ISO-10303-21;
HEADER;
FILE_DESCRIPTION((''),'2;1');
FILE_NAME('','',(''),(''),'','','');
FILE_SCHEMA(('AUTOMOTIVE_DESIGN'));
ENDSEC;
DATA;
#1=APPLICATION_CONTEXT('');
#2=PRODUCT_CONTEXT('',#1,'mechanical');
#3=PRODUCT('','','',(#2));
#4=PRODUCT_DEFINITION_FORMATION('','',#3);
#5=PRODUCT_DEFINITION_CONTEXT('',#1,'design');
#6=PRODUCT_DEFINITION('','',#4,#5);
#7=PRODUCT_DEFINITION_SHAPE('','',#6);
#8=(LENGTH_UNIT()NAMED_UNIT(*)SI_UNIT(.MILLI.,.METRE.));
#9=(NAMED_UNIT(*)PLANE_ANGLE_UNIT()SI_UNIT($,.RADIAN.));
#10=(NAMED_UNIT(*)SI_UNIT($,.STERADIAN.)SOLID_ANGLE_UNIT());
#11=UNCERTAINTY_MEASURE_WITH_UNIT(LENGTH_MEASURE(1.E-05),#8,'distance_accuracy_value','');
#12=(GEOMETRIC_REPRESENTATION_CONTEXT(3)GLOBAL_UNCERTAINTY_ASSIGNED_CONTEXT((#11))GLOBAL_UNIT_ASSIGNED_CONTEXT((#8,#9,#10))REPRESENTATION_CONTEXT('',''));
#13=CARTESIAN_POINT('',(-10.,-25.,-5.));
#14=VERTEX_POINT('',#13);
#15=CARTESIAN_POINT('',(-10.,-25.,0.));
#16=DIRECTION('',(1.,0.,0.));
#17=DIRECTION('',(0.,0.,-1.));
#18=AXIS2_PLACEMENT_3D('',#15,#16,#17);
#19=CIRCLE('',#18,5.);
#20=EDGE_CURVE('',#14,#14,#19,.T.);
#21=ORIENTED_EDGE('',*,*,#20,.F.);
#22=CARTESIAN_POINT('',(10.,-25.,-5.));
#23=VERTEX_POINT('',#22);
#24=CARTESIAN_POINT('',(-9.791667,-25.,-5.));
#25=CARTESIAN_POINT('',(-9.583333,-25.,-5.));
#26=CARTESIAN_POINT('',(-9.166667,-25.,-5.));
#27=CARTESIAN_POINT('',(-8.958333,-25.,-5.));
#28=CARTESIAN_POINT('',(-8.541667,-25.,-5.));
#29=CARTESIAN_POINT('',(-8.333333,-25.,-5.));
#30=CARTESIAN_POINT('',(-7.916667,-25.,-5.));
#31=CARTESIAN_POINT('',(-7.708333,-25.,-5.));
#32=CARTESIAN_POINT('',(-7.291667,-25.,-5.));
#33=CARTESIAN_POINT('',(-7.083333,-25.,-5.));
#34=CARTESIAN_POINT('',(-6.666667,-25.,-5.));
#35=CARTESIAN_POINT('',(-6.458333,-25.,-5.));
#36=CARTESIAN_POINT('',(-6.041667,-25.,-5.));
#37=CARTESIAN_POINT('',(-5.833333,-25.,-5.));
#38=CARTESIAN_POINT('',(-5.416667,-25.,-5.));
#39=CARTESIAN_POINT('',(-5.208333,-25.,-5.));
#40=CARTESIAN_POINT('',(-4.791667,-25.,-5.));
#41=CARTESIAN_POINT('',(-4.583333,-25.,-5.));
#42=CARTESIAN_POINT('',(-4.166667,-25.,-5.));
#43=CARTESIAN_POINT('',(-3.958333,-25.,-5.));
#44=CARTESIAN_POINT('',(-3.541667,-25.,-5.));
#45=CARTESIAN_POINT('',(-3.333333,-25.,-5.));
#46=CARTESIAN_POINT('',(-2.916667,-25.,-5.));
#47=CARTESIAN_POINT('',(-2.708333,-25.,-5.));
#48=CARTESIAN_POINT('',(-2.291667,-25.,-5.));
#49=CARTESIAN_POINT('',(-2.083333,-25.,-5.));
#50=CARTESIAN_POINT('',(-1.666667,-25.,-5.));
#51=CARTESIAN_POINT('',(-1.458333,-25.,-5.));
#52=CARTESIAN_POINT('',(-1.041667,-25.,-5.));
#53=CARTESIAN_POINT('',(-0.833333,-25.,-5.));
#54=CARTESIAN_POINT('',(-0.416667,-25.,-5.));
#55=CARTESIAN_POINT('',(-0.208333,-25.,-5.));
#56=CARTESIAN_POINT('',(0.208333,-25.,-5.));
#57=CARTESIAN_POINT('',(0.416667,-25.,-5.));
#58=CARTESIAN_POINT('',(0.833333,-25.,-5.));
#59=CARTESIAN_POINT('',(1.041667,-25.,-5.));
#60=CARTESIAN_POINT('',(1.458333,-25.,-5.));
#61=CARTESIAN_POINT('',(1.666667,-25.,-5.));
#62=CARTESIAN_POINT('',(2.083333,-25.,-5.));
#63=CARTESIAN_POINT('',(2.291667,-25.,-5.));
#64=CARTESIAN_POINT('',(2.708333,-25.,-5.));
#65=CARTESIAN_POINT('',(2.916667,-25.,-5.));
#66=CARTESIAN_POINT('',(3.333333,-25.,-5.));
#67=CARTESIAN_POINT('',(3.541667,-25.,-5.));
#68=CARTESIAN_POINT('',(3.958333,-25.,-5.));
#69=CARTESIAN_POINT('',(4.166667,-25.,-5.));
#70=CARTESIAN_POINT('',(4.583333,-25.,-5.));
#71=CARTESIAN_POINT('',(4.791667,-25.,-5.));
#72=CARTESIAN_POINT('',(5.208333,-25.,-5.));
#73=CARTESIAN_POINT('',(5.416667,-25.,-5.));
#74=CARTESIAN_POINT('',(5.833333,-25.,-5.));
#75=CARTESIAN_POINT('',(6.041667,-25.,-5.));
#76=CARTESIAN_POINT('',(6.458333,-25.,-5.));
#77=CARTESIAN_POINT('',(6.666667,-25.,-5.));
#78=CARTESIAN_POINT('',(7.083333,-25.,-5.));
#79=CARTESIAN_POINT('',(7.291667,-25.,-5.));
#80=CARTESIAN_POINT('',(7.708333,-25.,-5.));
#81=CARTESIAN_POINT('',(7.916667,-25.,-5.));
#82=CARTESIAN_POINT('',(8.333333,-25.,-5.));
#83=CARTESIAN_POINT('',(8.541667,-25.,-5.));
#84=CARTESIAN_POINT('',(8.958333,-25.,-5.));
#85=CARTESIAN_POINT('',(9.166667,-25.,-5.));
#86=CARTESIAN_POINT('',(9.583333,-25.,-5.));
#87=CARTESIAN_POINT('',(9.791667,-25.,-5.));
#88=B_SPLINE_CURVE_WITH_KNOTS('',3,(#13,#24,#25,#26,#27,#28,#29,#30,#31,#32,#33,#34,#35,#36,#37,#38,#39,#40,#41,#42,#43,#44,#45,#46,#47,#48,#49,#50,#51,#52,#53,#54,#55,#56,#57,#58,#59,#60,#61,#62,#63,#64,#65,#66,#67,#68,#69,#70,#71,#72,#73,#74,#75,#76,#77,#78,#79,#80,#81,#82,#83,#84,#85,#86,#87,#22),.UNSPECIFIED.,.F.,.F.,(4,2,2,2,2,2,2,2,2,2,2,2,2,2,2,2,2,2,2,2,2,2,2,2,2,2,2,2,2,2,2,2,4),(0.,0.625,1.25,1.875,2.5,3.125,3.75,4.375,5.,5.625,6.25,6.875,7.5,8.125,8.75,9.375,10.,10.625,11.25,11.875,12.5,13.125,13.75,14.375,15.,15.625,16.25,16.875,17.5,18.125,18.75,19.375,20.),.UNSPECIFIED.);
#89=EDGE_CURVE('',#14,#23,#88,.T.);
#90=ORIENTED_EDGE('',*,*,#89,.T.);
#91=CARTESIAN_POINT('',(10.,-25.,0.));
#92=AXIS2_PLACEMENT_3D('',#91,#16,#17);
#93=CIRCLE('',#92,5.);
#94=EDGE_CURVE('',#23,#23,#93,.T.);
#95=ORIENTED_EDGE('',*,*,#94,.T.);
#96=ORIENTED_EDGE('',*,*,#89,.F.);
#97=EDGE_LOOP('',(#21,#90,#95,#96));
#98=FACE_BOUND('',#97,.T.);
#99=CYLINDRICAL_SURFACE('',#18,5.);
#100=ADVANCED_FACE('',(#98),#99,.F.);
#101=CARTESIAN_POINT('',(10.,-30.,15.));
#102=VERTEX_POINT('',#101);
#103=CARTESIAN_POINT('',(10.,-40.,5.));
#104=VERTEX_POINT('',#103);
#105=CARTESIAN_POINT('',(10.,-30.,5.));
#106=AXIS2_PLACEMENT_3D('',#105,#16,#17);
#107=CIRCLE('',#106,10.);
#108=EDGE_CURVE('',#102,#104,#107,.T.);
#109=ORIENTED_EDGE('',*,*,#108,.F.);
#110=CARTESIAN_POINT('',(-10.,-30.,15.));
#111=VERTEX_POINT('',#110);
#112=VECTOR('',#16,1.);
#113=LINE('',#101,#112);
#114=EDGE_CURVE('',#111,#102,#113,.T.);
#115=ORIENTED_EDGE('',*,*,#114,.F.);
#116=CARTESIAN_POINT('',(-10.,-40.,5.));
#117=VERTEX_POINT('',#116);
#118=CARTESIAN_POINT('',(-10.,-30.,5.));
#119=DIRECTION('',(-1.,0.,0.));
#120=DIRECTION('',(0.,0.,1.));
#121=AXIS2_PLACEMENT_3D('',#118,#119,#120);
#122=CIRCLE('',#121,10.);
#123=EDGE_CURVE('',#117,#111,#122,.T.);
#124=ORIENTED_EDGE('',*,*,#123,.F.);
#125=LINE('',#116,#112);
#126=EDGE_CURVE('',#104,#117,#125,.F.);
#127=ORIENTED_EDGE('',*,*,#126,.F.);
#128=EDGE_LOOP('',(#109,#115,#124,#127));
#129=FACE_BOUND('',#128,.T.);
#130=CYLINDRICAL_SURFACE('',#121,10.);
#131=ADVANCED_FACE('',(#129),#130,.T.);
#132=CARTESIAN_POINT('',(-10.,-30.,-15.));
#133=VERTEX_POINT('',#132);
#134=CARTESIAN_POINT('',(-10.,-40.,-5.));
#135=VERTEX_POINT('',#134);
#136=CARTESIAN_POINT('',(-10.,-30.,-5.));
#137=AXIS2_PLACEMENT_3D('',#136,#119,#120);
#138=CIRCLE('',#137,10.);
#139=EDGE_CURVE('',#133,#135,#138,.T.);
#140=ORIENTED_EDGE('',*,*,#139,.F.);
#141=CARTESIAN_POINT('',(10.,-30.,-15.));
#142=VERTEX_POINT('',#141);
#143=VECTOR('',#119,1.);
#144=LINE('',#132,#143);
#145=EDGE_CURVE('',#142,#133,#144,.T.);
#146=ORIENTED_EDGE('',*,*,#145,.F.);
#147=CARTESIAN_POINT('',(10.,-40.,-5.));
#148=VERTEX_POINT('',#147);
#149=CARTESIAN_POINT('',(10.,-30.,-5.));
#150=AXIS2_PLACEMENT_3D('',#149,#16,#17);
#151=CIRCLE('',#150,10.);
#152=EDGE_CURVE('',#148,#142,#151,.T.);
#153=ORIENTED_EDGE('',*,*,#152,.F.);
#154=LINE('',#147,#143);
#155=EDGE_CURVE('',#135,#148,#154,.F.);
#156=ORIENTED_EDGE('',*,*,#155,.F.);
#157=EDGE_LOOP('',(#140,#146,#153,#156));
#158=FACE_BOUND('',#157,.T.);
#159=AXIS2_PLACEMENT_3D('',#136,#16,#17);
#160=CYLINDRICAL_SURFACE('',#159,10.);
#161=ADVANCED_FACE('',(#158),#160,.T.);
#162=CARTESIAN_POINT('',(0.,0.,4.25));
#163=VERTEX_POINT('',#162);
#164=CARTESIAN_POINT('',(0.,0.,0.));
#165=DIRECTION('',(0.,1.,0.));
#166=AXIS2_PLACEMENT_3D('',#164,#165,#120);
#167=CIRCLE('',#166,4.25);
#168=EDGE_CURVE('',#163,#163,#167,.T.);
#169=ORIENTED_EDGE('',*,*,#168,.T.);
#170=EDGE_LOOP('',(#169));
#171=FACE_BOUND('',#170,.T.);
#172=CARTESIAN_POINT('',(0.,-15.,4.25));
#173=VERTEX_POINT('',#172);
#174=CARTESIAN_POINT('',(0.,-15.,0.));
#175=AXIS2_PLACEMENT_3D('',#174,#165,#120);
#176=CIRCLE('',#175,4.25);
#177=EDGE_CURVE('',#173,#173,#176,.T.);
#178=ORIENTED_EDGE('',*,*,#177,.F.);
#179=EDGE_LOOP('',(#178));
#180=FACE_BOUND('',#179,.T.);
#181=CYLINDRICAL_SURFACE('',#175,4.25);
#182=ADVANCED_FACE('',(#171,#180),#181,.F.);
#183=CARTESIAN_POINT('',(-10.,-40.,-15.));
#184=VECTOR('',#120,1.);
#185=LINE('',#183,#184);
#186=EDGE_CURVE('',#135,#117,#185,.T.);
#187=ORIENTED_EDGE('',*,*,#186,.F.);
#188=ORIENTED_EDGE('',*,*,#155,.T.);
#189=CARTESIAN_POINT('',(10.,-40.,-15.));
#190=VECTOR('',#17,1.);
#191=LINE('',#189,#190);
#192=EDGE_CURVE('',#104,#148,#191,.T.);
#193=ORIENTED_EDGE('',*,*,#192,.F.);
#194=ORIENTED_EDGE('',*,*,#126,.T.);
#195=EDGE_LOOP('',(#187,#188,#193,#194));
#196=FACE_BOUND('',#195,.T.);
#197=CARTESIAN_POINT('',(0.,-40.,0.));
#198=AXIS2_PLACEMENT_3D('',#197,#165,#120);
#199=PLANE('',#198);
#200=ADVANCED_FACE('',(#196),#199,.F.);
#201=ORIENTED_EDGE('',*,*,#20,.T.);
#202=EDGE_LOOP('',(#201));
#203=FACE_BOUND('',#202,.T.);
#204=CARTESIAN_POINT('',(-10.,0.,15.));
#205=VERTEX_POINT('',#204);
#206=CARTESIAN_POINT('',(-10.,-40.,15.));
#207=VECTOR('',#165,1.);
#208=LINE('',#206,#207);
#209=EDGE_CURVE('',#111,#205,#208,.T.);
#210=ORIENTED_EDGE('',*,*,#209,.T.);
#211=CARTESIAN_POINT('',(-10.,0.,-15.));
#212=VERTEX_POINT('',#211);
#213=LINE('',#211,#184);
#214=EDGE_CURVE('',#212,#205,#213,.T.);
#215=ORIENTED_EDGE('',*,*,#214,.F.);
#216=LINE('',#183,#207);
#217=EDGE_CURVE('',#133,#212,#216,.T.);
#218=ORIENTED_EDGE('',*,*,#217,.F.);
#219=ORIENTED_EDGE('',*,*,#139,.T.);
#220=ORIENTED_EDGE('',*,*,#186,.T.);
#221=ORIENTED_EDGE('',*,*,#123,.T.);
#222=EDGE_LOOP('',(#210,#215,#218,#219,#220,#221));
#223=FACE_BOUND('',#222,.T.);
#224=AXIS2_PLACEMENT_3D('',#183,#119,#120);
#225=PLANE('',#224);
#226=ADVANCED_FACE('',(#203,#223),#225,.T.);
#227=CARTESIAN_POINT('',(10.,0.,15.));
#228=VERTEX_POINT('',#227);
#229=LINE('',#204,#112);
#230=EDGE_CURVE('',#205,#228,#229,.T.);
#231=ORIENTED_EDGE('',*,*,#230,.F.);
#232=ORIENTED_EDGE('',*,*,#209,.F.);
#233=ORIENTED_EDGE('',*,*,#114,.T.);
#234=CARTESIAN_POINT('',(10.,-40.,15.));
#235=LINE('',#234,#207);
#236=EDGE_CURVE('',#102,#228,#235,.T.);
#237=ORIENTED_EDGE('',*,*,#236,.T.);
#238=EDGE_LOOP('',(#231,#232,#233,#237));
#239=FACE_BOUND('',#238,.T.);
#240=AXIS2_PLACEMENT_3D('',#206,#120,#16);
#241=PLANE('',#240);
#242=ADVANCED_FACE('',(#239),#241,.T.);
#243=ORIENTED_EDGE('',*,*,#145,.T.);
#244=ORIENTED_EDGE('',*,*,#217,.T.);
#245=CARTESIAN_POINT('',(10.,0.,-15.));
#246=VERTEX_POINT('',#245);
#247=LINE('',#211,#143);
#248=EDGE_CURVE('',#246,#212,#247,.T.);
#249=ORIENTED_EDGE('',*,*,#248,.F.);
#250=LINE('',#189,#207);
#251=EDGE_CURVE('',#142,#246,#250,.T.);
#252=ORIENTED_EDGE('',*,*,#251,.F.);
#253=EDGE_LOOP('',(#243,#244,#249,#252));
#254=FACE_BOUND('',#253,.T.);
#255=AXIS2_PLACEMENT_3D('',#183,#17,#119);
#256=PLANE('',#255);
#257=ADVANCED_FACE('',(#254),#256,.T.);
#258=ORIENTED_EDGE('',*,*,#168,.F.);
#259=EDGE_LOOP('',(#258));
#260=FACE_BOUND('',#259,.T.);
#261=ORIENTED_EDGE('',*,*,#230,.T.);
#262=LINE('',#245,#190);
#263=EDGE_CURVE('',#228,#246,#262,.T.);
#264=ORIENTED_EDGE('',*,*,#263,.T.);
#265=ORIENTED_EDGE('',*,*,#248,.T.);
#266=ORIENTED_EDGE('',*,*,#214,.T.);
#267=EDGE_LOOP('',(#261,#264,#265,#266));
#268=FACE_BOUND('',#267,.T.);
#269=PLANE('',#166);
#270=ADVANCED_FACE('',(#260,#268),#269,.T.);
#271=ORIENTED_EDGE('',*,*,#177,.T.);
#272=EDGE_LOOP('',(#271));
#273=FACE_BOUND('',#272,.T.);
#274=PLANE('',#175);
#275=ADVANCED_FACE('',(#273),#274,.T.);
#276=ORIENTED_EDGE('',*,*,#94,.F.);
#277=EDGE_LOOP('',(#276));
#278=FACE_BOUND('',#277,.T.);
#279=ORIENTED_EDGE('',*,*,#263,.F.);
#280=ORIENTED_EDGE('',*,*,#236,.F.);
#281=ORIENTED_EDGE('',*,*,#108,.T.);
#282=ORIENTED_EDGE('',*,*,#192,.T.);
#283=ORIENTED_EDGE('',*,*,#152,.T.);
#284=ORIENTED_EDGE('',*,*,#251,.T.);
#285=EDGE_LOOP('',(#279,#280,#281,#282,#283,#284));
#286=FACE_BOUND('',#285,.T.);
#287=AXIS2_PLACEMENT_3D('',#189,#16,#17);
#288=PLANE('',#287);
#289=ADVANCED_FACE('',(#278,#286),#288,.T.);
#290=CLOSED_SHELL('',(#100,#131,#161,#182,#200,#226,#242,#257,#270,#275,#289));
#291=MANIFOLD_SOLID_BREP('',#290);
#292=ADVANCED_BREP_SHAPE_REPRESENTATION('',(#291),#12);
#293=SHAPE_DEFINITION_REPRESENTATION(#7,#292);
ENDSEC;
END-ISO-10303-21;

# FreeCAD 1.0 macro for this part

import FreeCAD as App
import Part
import Sketcher


def edges_at(feature, points):
    """Names of the edges that pass closest to the given points."""
    edges = feature.Shape.Edges
    near = lambda p: min(range(len(edges)), key=lambda i: edges[i].distToShape(Part.Vertex(*p))[0])
    return sorted({f"Edge{near(p) + 1}" for p in points})

doc = App.newDocument("Part")
params = doc.addObject("Spreadsheet::Sheet", "Params")
for row, (alias, value) in enumerate([
    ("sketch1_width", "20 mm"),
    ("sketch1_height", "30 mm"),
    ("pad1_length", "40 mm"),
    ("sketch2_diameter", "8.5 mm"),
    ("pocket1_length", "15 mm"),
    ("sketch3_diameter", "10 mm"),
    ("fillet_radius", "10 mm"),
], start=1):
    params.set(f"A{row}", alias)
    params.set(f"B{row}", "=" + value)
    params.setAlias(f"B{row}", alias)

body = doc.addObject("PartDesign::Body", "Body")

sketch1 = doc.addObject("Sketcher::SketchObject", "Sketch")
body.addObject(sketch1)
sketch1.AttachmentSupport = (doc.XZ_Plane, [""])
sketch1.MapMode = "FlatFace"
sketch1.addGeometry(Part.LineSegment(App.Vector(-10, -15, 0), App.Vector(-10, 15, 0)), False)
sketch1.addGeometry(Part.LineSegment(App.Vector(-10, 15, 0), App.Vector(10, 15, 0)), False)
sketch1.addGeometry(Part.LineSegment(App.Vector(10, 15, 0), App.Vector(10, -15, 0)), False)
sketch1.addGeometry(Part.LineSegment(App.Vector(10, -15, 0), App.Vector(-10, -15, 0)), False)
sketch1.addConstraint(Sketcher.Constraint("Coincident", 0, 2, 1, 1))
sketch1.addConstraint(Sketcher.Constraint("Coincident", 1, 2, 2, 1))
sketch1.addConstraint(Sketcher.Constraint("Coincident", 2, 2, 3, 1))
sketch1.addConstraint(Sketcher.Constraint("Coincident", 3, 2, 0, 1))
sketch1.addConstraint(Sketcher.Constraint("Vertical", 0))
sketch1.addConstraint(Sketcher.Constraint("Horizontal", 1))
sketch1.addConstraint(Sketcher.Constraint("Vertical", 2))
sketch1.addConstraint(Sketcher.Constraint("Horizontal", 3))
sketch1.addConstraint(Sketcher.Constraint("Symmetric", 0, 2, 2, 2, -1, 1))
sketch1.addConstraint(Sketcher.Constraint("DistanceX", 1, 1, 1, 2, 20.0))
sketch1.addConstraint(Sketcher.Constraint("DistanceY", 0, 1, 0, 2, 30.0))
sketch1.setExpression("Constraints[9]", "Params.sketch1_width")
sketch1.setExpression("Constraints[10]", "Params.sketch1_height")
pad1 = doc.addObject("PartDesign::Pad", "Pad")
body.addObject(pad1)
pad1.Profile = sketch1
pad1.setExpression("Length", "Params.pad1_length")

sketch2 = doc.addObject("Sketcher::SketchObject", "Sketch001")
body.addObject(sketch2)
sketch2.AttachmentSupport = (doc.XZ_Plane, [""])
sketch2.MapMode = "FlatFace"
sketch2.addGeometry(Part.Circle(App.Vector(0, 0, 0), App.Vector(0, 0, 1), 4.2), False)
sketch2.addConstraint(Sketcher.Constraint("Coincident", 0, 3, -1, 1))
sketch2.addConstraint(Sketcher.Constraint("Diameter", 0, 8.5))
sketch2.setExpression("Constraints[1]", "Params.sketch2_diameter")
pocket1 = doc.addObject("PartDesign::Pocket", "Pocket")
body.addObject(pocket1)
pocket1.Profile = sketch2
pocket1.setExpression("Length", "Params.pocket1_length")
pocket1.Reversed = True

sketch3 = doc.addObject("Sketcher::SketchObject", "Sketch002")
body.addObject(sketch3)
sketch3.AttachmentSupport = (doc.YZ_Plane, [""])
sketch3.MapMode = "FlatFace"
sketch3.addGeometry(Part.Circle(App.Vector(-25, 0, 0), App.Vector(0, 0, 1), 5), False)
sketch3.addConstraint(Sketcher.Constraint("PointOnObject", 0, 3, -1))
sketch3.addConstraint(Sketcher.Constraint("Diameter", 0, 10.0))
sketch3.addConstraint(Sketcher.Constraint("DistanceX", 0, 3, -1, 1, 25.0))
sketch3.setExpression("Constraints[1]", "Params.sketch3_diameter")
pocket2 = doc.addObject("PartDesign::Pocket", "Pocket001")
body.addObject(pocket2)
pocket2.Profile = sketch3
pocket2.Type = "ThroughAll"
pocket2.Midplane = True
doc.recompute()

fillet = doc.addObject("PartDesign::Fillet", "Fillet")
body.addObject(fillet)
fillet.Base = (pocket2, edges_at(pocket2, [(0, -40, 15), (0, -40, -15)]))
fillet.setExpression("Radius", "Params.fillet_radius")

doc.recompute()
